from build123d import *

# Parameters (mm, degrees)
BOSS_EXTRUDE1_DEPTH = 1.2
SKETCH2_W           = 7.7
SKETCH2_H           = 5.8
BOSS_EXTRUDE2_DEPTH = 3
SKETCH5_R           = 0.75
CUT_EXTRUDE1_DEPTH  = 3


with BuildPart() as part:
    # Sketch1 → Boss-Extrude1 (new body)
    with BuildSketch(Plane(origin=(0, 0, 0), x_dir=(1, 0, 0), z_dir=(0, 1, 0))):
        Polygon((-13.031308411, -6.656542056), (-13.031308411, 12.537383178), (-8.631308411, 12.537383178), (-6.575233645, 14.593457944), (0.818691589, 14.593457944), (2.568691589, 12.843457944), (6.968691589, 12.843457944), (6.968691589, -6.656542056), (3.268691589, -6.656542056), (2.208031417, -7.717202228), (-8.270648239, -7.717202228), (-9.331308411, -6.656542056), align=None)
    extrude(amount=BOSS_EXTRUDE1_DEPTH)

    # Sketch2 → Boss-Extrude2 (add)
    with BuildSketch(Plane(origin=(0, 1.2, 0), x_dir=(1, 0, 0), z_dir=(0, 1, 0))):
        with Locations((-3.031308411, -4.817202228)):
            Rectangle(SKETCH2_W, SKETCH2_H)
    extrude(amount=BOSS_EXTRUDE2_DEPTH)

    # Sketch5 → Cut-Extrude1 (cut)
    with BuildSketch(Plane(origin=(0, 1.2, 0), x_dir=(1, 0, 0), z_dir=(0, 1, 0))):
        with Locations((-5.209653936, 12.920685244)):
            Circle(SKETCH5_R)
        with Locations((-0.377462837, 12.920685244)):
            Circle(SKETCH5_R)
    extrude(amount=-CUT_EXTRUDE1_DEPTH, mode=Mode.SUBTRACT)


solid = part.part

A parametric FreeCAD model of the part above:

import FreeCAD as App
import Part
import Sketcher
Q = App.Units.Quantity

doc = App.newDocument("Part")
params = doc.addObject("Spreadsheet::Sheet", "Params")
for row, (alias, value) in enumerate([
    ("sketch1_width", "3.7 mm"),
    ("sketch1_width2", "4.4 mm"),
    ("sketch1_height", "19.5 mm"),
    ("sketch1_length", "1.5 mm"),
    ("pad1_length", "1.2 mm"),
    ("sketch2_width", "7.7 mm"),
    ("sketch2_height", "5.8 mm"),
    ("pad2_length", "3 mm"),
    ("sketch3_diameter", "1.5 mm"),
    ("pocket1_length", "3 mm"),
], start=1):
    params.set(f"A{row}", alias)
    params.set(f"B{row}", "=" + value)
    params.setAlias(f"B{row}", alias)

body = doc.addObject("PartDesign::Body", "Body")

# Sketch on XZ plane
sketch1 = body.newObject("Sketcher::SketchObject", "Sketch")
sketch1.AttachmentSupport = (doc.getObject("XZ_Plane"), [""])
sketch1.MapMode = "FlatFace"
sketch1.addGeometry([
    Part.LineSegment(App.Vector(-13, -12.5, 0), App.Vector(-13, 6.7, 0)),  # 0
    Part.LineSegment(App.Vector(-13, 6.7, 0), App.Vector(-9.3, 6.7, 0)),  # 1
    Part.LineSegment(App.Vector(-9.3, 6.7, 0), App.Vector(-8.3, 7.7, 0)),  # 2
    Part.LineSegment(App.Vector(-8.3, 7.7, 0), App.Vector(2.2, 7.7, 0)),  # 3
    Part.LineSegment(App.Vector(2.2, 7.7, 0), App.Vector(3.3, 6.7, 0)),  # 4
    Part.LineSegment(App.Vector(3.3, 6.7, 0), App.Vector(7, 6.7, 0)),  # 5
    Part.LineSegment(App.Vector(7, 6.7, 0), App.Vector(7, -12.8, 0)),  # 6
    Part.LineSegment(App.Vector(7, -12.8, 0), App.Vector(2.6, -12.8, 0)),  # 7
    Part.LineSegment(App.Vector(2.6, -12.8, 0), App.Vector(0.8, -14.6, 0)),  # 8
    Part.LineSegment(App.Vector(0.8, -14.6, 0), App.Vector(-6.6, -14.6, 0)),  # 9
    Part.LineSegment(App.Vector(-6.6, -14.6, 0), App.Vector(-8.6, -12.5, 0)),  # 10
    Part.LineSegment(App.Vector(-8.6, -12.5, 0), App.Vector(-13, -12.5, 0)),  # 11
], False)
sketch1.addConstraint([
    Sketcher.Constraint("Coincident", 0, 2, 1, 1),
    Sketcher.Constraint("Coincident", 1, 2, 2, 1),
    Sketcher.Constraint("Coincident", 2, 2, 3, 1),
    Sketcher.Constraint("Coincident", 3, 2, 4, 1),
    Sketcher.Constraint("Coincident", 4, 2, 5, 1),
    Sketcher.Constraint("Coincident", 5, 2, 6, 1),
    Sketcher.Constraint("Coincident", 6, 2, 7, 1),
    Sketcher.Constraint("Coincident", 7, 2, 8, 1),
    Sketcher.Constraint("Coincident", 8, 2, 9, 1),
    Sketcher.Constraint("Coincident", 9, 2, 10, 1),
    Sketcher.Constraint("Coincident", 10, 2, 11, 1),
    Sketcher.Constraint("Coincident", 11, 2, 0, 1),
    Sketcher.Constraint("Vertical", 0),
    Sketcher.Constraint("Horizontal", 1),
    Sketcher.Constraint("Horizontal", 3),
    Sketcher.Constraint("Horizontal", 5),
    Sketcher.Constraint("Vertical", 6),
    Sketcher.Constraint("Horizontal", 7),
    Sketcher.Constraint("Horizontal", 9),
    Sketcher.Constraint("Horizontal", 11),
    Sketcher.Constraint("Perpendicular", 2, 4),
    Sketcher.Constraint("Perpendicular", 4, 8),
    Sketcher.Constraint("Perpendicular", 8, 10),
    Sketcher.Constraint("Horizontal", 1, 2, 4, 2),
    Sketcher.Constraint("Equal", 1, 5),
    Sketcher.Constraint("Equal", 7, 11),
    Sketcher.Constraint("Equal", 2, 4),
    Sketcher.Constraint("DistanceX", 1, 1, 1, 2, Q("3.7 mm")),
    Sketcher.Constraint("DistanceX", 7, 2, 7, 1, Q("4.4 mm")),
    Sketcher.Constraint("DistanceY", 6, 2, 6, 1, Q("19.5 mm")),
    Sketcher.Constraint("DistanceX", 0, 2, 5, 2, Q("20 mm")),
    Sketcher.Constraint("Distance", 2, Q("1.5 mm")),
    Sketcher.Constraint("DistanceX", 8, 2, 7, 2, Q("1.75 mm")),
    Sketcher.Constraint("Distance", 10, Q("2.907729 mm")),
    Sketcher.Constraint("DistanceX", 0, 2, -1, 1, Q("13.031308 mm")),
    Sketcher.Constraint("DistanceY", -1, 1, 0, 2, Q("6.656542 mm")),
])
sketch1.setExpression("Constraints[27]", "Params.sketch1_width")
sketch1.setExpression("Constraints[28]", "Params.sketch1_width2")
sketch1.setExpression("Constraints[29]", "Params.sketch1_height")
sketch1.setExpression("Constraints[31]", "Params.sketch1_length")
pad1 = body.newObject("PartDesign::Pad", "Pad")
pad1.Profile = sketch1
pad1.setExpression("Length", "Params.pad1_length")
pad1.Reversed = True

# Sketch on XZ plane
sketch2 = body.newObject("Sketcher::SketchObject", "Sketch001")
sketch2.AttachmentSupport = (doc.getObject("XZ_Plane"), [""])
sketch2.MapMode = "FlatFace"
sketch2.AttachmentOffset = App.Placement(App.Vector(0, 0, -1.2), App.Rotation())
sketch2.addGeometry([
    Part.LineSegment(App.Vector(-7, 2, 0), App.Vector(-7, 8, 0)),
    Part.LineSegment(App.Vector(-7, 8, 0), App.Vector(1, 8, 0)),
    Part.LineSegment(App.Vector(1, 8, 0), App.Vector(1, 2, 0)),
    Part.LineSegment(App.Vector(1, 2, 0), App.Vector(-7, 2, 0)),
], False)
sketch2.addConstraint([
    Sketcher.Constraint("Coincident", 0, 2, 1, 1),
    Sketcher.Constraint("Coincident", 1, 2, 2, 1),
    Sketcher.Constraint("Coincident", 2, 2, 3, 1),
    Sketcher.Constraint("Coincident", 3, 2, 0, 1),
    Sketcher.Constraint("Vertical", 0),
    Sketcher.Constraint("Horizontal", 1),
    Sketcher.Constraint("Vertical", 2),
    Sketcher.Constraint("Horizontal", 3),
    Sketcher.Constraint("DistanceX", 1, 1, 1, 2, Q("7.7 mm")),
    Sketcher.Constraint("DistanceY", 0, 1, 0, 2, Q("5.8 mm")),
    Sketcher.Constraint("DistanceX", 0, 2, -1, 1, Q("6.881308 mm")),
    Sketcher.Constraint("DistanceY", -1, 1, 0, 2, Q("7.717202 mm")),
])
sketch2.setExpression("Constraints[8]", "Params.sketch2_width")
sketch2.setExpression("Constraints[9]", "Params.sketch2_height")
pad2 = body.newObject("PartDesign::Pad", "Pad001")
pad2.Profile = sketch2
pad2.setExpression("Length", "Params.pad2_length")
pad2.Reversed = True

# Sketch on XZ plane
sketch3 = body.newObject("Sketcher::SketchObject", "Sketch002")
sketch3.AttachmentSupport = (doc.getObject("XZ_Plane"), [""])
sketch3.MapMode = "FlatFace"
sketch3.AttachmentOffset = App.Placement(App.Vector(0, 0, -1.2), App.Rotation())
sketch3.addGeometry([
    Part.Circle(App.Vector(-5.2, -12.9, 0), App.Vector(0, 0, 1), 0.8),
    Part.Circle(App.Vector(-0.4, -12.9, 0), App.Vector(0, 0, 1), 0.8),
], False)
sketch3.addConstraint([
    Sketcher.Constraint("Equal", 0, 1),
    Sketcher.Constraint("Horizontal", 0, 3, 1, 3),
    Sketcher.Constraint("Diameter", 0, Q("1.5 mm")),
    Sketcher.Constraint("DistanceX", 0, 3, 1, 3, Q("4.832191 mm")),
    Sketcher.Constraint("DistanceX", 0, 3, -1, 1, Q("5.209654 mm")),
    Sketcher.Constraint("DistanceY", 0, 3, -1, 1, Q("12.920685 mm")),
])
sketch3.setExpression("Constraints[2]", "Params.sketch3_diameter")
pocket1 = body.newObject("PartDesign::Pocket", "Pocket")
pocket1.Profile = sketch3
pocket1.setExpression("Length", "Params.pocket1_length")
pocket1.Reversed = True

doc.recompute()
